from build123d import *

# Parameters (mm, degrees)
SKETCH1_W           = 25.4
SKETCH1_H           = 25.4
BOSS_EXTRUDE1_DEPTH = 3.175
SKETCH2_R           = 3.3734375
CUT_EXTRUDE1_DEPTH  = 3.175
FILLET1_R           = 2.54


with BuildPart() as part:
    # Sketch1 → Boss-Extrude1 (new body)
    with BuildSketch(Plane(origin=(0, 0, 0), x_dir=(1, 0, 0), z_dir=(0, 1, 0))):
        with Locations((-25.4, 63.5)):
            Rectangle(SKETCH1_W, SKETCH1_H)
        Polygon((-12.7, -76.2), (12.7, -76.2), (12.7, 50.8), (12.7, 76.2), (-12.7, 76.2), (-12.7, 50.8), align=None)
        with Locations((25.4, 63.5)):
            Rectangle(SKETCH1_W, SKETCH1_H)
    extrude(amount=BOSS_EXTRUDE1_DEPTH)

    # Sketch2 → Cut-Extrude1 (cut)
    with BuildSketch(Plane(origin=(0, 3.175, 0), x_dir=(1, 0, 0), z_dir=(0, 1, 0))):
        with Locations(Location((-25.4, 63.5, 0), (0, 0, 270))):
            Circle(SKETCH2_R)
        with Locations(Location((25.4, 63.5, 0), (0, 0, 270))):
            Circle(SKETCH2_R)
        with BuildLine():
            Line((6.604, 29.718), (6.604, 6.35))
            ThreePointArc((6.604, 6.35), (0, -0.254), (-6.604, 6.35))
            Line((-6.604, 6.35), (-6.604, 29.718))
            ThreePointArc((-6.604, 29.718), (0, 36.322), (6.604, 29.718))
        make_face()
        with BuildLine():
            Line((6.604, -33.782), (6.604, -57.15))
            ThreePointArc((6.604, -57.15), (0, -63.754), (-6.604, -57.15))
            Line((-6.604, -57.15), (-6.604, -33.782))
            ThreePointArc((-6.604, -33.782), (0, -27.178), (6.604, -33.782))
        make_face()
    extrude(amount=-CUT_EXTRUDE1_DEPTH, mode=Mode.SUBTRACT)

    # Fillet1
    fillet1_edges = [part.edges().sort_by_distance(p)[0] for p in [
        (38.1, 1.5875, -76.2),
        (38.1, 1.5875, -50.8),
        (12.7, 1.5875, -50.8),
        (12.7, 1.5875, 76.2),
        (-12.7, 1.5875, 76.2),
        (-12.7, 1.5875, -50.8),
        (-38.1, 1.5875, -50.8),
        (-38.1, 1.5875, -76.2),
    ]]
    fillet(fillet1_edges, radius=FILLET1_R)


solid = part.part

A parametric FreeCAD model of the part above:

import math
import FreeCAD as App
import Part
import Sketcher
from FreeCAD import Vector
Q = App.Units.Quantity


def edges_at(feature, points):
    """Names of the edges that pass closest to the given points."""
    edges = feature.Shape.Edges
    near = lambda p: min(range(len(edges)), key=lambda i: edges[i].distToShape(Part.Vertex(*p))[0])
    return sorted({f"Edge{near(p) + 1}" for p in points})


def add_polygon(sketch, points):
    """Adds a closed chain of lines whose ends are joined by coincident constraints."""
    first, n = sketch.GeometryCount, len(points)
    for a, b in zip(points, points[1:] + points[:1]):
        sketch.addGeometry(Part.LineSegment(App.Vector(*a, 0), App.Vector(*b, 0)), False)
    for i in range(n):
        sketch.addConstraint(Sketcher.Constraint("Coincident", first + i, 2, first + (i + 1) % n, 1))

doc = App.newDocument("Part")
params = doc.addObject("Spreadsheet::Sheet", "Params")
for row, (alias, value) in enumerate([
    ("sketch1_width", "1 in"),
    ("sketch1_height", "5 in"),
    ("pad1_length", "0.125 in"),
    ("sketch2_radius", "0.26 in"),
    ("sketch2_diameter", "0.265625 in"),
    ("sketch2_height", "0.92 in"),
    ("pocket1_length", "0.125 in"),
    ("fillet_radius", "0.1 in"),
], start=1):
    params.set(f"A{row}", alias)
    params.set(f"B{row}", "=" + value)
    params.setAlias(f"B{row}", alias)

body = doc.addObject("PartDesign::Body", "Body")

# Sketch on XZ plane
sketch1 = body.newObject("Sketcher::SketchObject", "Sketch")
sketch1.AttachmentSupport = (doc.getObject("XZ_Plane"), [""])
sketch1.MapMode = "FlatFace"
add_polygon(sketch1, [(-38.1, -76.2), (-38.1, -50.8), (-12.7, -50.8), (-12.7, 76.2), (12.7, 76.2), (12.7, -50.8), (38.1, -50.8), (38.1, -76.2)])  # lines 0-7
sketch1.addConstraint(Sketcher.Constraint("Vertical", 0))
sketch1.addConstraint(Sketcher.Constraint("Horizontal", 1))
sketch1.addConstraint(Sketcher.Constraint("Vertical", 2))
sketch1.addConstraint(Sketcher.Constraint("Horizontal", 3))
sketch1.addConstraint(Sketcher.Constraint("Vertical", 4))
sketch1.addConstraint(Sketcher.Constraint("Horizontal", 5))
sketch1.addConstraint(Sketcher.Constraint("Vertical", 6))
sketch1.addConstraint(Sketcher.Constraint("Horizontal", 7))
sketch1.addConstraint(Sketcher.Constraint("Symmetric", 1, 2, 4, 2, -2))
sketch1.addConstraint(Sketcher.Constraint("Equal", 1, 3))
sketch1.addConstraint(Sketcher.Constraint("Equal", 3, 5))
sketch1.addConstraint(Sketcher.Constraint("Equal", 5, 0))
sketch1.addConstraint(Sketcher.Constraint("DistanceX", 1, 1, 1, 2, Q("1 in")))
sketch1.addConstraint(Sketcher.Constraint("DistanceY", 2, 1, 2, 2, Q("5 in")))
sketch1.addConstraint(Sketcher.Constraint("DistanceY", 0, 2, -1, 1, Q("2 in")))
sketch1.setExpression("Constraints[20]", "Params.sketch1_width")
sketch1.setExpression("Constraints[21]", "Params.sketch1_height")
pad1 = body.newObject("PartDesign::Pad", "Pad")
pad1.Profile = sketch1
pad1.setExpression("Length", "Params.pad1_length")
pad1.Reversed = True

# Sketch on XZ plane
sketch2 = body.newObject("Sketcher::SketchObject", "Sketch001")
sketch2.AttachmentSupport = (doc.getObject("XZ_Plane"), [""])
sketch2.MapMode = "FlatFace"
sketch2.AttachmentOffset = App.Placement(Vector(0, 0, -0.125 * 25.4), App.Rotation())
sketch2.addGeometry(Part.Circle(Vector(-25.4, -63.5, 0), Vector(0, 0, 1), 3.373438), False)
sketch2.addGeometry(Part.Circle(Vector(25.4, -63.5, 0), Vector(0, 0, 1), 3.373438), False)
sketch2.addGeometry(Part.LineSegment(Vector(6.604, -6.35, 0), Vector(6.604, -29.718, 0)), False)
sketch2.addGeometry(Part.ArcOfCircle(Part.Circle(Vector(0, -29.718, 0), Vector(0, 0, 1), 6.604), math.radians(180), math.radians(360)), False)
sketch2.addGeometry(Part.LineSegment(Vector(-6.604, -29.718, 0), Vector(-6.604, -6.35, 0)), False)
sketch2.addGeometry(Part.ArcOfCircle(Part.Circle(Vector(0, -6.35, 0), Vector(0, 0, 1), 6.604), math.radians(0), math.radians(180)), False)
sketch2.addGeometry(Part.LineSegment(Vector(6.604, 57.15, 0), Vector(6.604, 33.782, 0)), False)
sketch2.addGeometry(Part.ArcOfCircle(Part.Circle(Vector(0, 33.782, 0), Vector(0, 0, 1), 6.604), math.radians(180), math.radians(360)), False)
sketch2.addGeometry(Part.LineSegment(Vector(-6.604, 33.782, 0), Vector(-6.604, 57.15, 0)), False)
sketch2.addGeometry(Part.ArcOfCircle(Part.Circle(Vector(0, 57.15, 0), Vector(0, 0, 1), 6.604), math.radians(0), math.radians(180)), False)
sketch2.addConstraint(Sketcher.Constraint("Tangent", 2, 2, 3, 2))
sketch2.addConstraint(Sketcher.Constraint("Tangent", 3, 1, 4, 1))
sketch2.addConstraint(Sketcher.Constraint("Tangent", 4, 2, 5, 2))
sketch2.addConstraint(Sketcher.Constraint("Tangent", 5, 1, 2, 1))
sketch2.addConstraint(Sketcher.Constraint("Tangent", 6, 2, 7, 2))
sketch2.addConstraint(Sketcher.Constraint("Tangent", 7, 1, 8, 1))
sketch2.addConstraint(Sketcher.Constraint("Tangent", 8, 2, 9, 2))
sketch2.addConstraint(Sketcher.Constraint("Tangent", 9, 1, 6, 1))
sketch2.addConstraint(Sketcher.Constraint("Vertical", 2))
sketch2.addConstraint(Sketcher.Constraint("Vertical", 4))
sketch2.addConstraint(Sketcher.Constraint("Vertical", 6))
sketch2.addConstraint(Sketcher.Constraint("Vertical", 8))
sketch2.addConstraint(Sketcher.Constraint("Equal", 0, 1))
sketch2.addConstraint(Sketcher.Constraint("Equal", 5, 7))
sketch2.addConstraint(Sketcher.Constraint("Symmetric", 0, 3, 1, 3, -2))
sketch2.addConstraint(Sketcher.Constraint("PointOnObject", 3, 3, -2))
sketch2.addConstraint(Sketcher.Constraint("PointOnObject", 7, 3, -2))
sketch2.addConstraint(Sketcher.Constraint("Equal", 4, 6))
sketch2.addConstraint(Sketcher.Constraint("Radius", 3, Q("0.26 in")))
sketch2.addConstraint(Sketcher.Constraint("Diameter", 0, Q("0.265625 in")))
sketch2.addConstraint(Sketcher.Constraint("DistanceX", 0, 3, -1, 1, Q("1 in")))
sketch2.addConstraint(Sketcher.Constraint("DistanceY", 2, 2, 2, 1, Q("0.92 in")))
sketch2.addConstraint(Sketcher.Constraint("DistanceY", 0, 3, -1, 1, Q("2.5 in")))
sketch2.addConstraint(Sketcher.Constraint("DistanceY", 3, 3, 7, 3, Q("2.5 in")))
sketch2.addConstraint(Sketcher.Constraint("DistanceY", 3, 3, -1, 1, Q("1.17 in")))
sketch2.setExpression("Constraints[18]", "Params.sketch2_radius")
sketch2.setExpression("Constraints[19]", "Params.sketch2_diameter")
sketch2.setExpression("Constraints[21]", "Params.sketch2_height")
pocket1 = body.newObject("PartDesign::Pocket", "Pocket")
pocket1.Profile = sketch2
pocket1.setExpression("Length", "Params.pocket1_length")
pocket1.Reversed = True
doc.recompute()

fillet = body.newObject("PartDesign::Fillet", "Fillet")
fillet.Base = (pocket1, edges_at(pocket1, [
    (38.1, 1.587, -76.2),
    (38.1, 1.587, -50.8),
    (12.7, 1.587, -50.8),
    (12.7, 1.587, 76.2),
    (-12.7, 1.587, 76.2),
    (-12.7, 1.587, -50.8),
    (-38.1, 1.587, -50.8),
    (-38.1, 1.587, -76.2),
]))
fillet.setExpression("Radius", "Params.fillet_radius")

doc.recompute()
